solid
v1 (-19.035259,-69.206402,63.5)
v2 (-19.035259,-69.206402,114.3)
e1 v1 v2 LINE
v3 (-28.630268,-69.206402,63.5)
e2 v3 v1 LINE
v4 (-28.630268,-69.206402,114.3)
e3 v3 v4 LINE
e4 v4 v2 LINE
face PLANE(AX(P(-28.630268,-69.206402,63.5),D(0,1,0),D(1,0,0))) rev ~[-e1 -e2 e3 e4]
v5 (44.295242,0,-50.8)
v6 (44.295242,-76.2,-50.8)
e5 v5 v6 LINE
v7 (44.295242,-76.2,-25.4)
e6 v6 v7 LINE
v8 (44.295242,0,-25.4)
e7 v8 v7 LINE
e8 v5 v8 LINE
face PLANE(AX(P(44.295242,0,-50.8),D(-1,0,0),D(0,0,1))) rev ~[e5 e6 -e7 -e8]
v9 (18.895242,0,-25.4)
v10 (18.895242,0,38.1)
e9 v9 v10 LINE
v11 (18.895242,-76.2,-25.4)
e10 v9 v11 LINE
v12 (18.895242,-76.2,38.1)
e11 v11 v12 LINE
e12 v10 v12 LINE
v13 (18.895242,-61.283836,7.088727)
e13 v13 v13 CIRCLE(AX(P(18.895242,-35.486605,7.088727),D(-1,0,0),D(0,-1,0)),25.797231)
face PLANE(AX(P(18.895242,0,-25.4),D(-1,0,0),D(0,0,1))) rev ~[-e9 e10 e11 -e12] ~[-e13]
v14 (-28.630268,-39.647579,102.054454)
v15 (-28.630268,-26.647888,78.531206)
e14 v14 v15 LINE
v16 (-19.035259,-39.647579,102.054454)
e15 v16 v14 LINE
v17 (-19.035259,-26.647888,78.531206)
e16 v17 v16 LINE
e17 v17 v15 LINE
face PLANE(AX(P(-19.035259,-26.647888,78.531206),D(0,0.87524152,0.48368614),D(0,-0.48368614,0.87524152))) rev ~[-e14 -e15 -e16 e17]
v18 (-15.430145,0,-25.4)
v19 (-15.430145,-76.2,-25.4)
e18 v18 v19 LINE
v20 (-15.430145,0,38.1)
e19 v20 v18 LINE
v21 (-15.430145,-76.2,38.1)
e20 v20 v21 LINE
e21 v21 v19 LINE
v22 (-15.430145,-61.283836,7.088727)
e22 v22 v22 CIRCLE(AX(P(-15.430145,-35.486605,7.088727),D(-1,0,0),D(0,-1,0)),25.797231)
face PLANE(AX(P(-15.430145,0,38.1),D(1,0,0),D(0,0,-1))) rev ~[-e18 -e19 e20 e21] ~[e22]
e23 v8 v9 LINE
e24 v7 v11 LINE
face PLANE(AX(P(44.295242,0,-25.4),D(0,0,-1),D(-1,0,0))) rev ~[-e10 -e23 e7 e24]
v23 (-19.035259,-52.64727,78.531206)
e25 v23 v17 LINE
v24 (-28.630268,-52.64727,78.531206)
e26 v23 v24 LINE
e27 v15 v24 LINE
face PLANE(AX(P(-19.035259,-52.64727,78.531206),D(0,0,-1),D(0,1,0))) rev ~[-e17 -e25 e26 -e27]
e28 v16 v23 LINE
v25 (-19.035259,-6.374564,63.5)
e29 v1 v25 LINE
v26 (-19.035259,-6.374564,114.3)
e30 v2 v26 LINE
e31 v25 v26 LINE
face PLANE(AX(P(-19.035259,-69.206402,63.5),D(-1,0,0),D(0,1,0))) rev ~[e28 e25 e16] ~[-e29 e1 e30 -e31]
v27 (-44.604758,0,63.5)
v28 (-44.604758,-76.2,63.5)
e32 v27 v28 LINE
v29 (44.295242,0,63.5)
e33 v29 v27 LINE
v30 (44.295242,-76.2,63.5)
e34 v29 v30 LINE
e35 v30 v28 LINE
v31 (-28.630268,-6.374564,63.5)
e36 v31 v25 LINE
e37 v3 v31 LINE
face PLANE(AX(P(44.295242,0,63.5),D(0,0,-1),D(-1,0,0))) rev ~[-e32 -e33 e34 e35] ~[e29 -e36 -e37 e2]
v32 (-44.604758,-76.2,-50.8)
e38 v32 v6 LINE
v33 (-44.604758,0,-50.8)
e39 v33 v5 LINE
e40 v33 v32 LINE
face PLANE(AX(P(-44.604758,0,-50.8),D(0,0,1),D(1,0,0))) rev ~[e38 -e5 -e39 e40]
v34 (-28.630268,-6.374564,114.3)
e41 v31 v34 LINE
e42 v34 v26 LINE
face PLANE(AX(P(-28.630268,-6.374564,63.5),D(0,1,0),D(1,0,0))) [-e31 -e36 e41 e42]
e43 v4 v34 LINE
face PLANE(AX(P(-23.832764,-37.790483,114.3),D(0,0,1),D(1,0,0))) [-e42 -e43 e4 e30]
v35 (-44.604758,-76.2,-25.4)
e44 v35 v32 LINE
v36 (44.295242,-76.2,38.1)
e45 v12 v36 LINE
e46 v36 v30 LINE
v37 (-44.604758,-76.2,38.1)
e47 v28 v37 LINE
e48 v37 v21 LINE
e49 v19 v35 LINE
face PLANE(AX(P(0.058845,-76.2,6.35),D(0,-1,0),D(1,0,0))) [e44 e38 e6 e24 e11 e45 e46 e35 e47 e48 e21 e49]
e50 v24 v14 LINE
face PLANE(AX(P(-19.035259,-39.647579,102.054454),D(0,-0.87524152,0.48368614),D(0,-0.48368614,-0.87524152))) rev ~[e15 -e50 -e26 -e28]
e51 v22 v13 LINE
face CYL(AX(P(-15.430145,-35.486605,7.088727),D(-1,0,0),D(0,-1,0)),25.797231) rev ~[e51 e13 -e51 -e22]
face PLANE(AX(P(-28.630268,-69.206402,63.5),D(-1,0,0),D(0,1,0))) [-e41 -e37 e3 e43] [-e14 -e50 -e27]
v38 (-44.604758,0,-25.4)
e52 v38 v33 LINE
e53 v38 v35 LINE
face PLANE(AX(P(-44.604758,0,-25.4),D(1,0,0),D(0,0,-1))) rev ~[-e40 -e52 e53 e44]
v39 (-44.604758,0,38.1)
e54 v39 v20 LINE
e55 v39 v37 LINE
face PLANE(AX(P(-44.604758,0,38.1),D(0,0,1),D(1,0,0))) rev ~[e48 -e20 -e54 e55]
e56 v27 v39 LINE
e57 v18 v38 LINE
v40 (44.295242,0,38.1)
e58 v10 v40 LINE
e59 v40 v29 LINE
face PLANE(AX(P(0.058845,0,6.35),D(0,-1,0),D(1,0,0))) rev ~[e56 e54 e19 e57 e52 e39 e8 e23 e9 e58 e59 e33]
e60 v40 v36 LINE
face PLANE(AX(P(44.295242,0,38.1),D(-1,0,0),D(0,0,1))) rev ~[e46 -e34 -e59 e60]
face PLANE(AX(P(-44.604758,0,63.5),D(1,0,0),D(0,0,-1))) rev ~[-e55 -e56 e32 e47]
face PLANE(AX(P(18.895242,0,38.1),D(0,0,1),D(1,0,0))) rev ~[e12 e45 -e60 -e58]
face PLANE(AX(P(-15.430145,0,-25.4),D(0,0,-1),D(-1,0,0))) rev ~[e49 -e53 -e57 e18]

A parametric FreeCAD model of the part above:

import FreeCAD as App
import Part
import Sketcher

V = App.Vector
Q = App.Units.Quantity

doc = App.newDocument("Part")
params = doc.addObject("Spreadsheet::Sheet", "Params")
for row, (alias, value) in enumerate([
    ("sketch1_width", "1 in"),
    ("sketch1_width2", "3.5 in"),
    ("sketch1_height", "2.5 in"),
    ("pad1_length", "3 in"),
    ("pad2_length", "2 in"),
], start=1):
    params.set(f"A{row}", alias)
    params.set(f"B{row}", "=" + value)
    params.setAlias(f"B{row}", alias)

body = doc.addObject("PartDesign::Body", "Body")

# Sketch on XZ plane
sketch1 = body.newObject("Sketcher::SketchObject", "Sketch")
sketch1.AttachmentSupport = (doc.getObject("XZ_Plane"), [""])
sketch1.MapMode = "FlatFace"
sketch1.addGeometry([
    Part.LineSegment(V(-44.604758, -25.4, 0), V(-44.604758, -50.8, 0)),  # 0
    Part.LineSegment(V(-44.604758, -50.8, 0), V(44.295242, -50.8, 0)),  # 1
    Part.LineSegment(V(44.295242, -50.8, 0), V(44.295242, -25.4, 0)),  # 2
    Part.LineSegment(V(44.295242, -25.4, 0), V(18.895242, -25.4, 0)),  # 3
    Part.LineSegment(V(18.895242, -25.4, 0), V(18.895242, 38.1, 0)),  # 4
    Part.LineSegment(V(18.895242, 38.1, 0), V(44.295242, 38.1, 0)),  # 5
    Part.LineSegment(V(44.295242, 38.1, 0), V(44.295242, 63.5, 0)),  # 6
    Part.LineSegment(V(44.295242, 63.5, 0), V(-44.604758, 63.5, 0)),  # 7
    Part.LineSegment(V(-44.604758, 63.5, 0), V(-44.604758, 38.1, 0)),  # 8
    Part.LineSegment(V(-44.604758, 38.1, 0), V(-15.430146, 38.1, 0)),  # 9
    Part.LineSegment(V(-15.430146, 38.1, 0), V(-15.430146, -25.4, 0)),  # 10
    Part.LineSegment(V(-15.430146, -25.4, 0), V(-44.604758, -25.4, 0)),  # 11
], False)
sketch1.addConstraint([
    Sketcher.Constraint("Coincident", 0, 2, 1, 1),
    Sketcher.Constraint("Coincident", 1, 2, 2, 1),
    Sketcher.Constraint("Coincident", 2, 2, 3, 1),
    Sketcher.Constraint("Coincident", 3, 2, 4, 1),
    Sketcher.Constraint("Coincident", 4, 2, 5, 1),
    Sketcher.Constraint("Coincident", 5, 2, 6, 1),
    Sketcher.Constraint("Coincident", 6, 2, 7, 1),
    Sketcher.Constraint("Coincident", 7, 2, 8, 1),
    Sketcher.Constraint("Coincident", 8, 2, 9, 1),
    Sketcher.Constraint("Coincident", 9, 2, 10, 1),
    Sketcher.Constraint("Coincident", 10, 2, 11, 1),
    Sketcher.Constraint("Coincident", 11, 2, 0, 1),
    Sketcher.Constraint("Vertical", 0),
    Sketcher.Constraint("Horizontal", 1),
    Sketcher.Constraint("Vertical", 2),
    Sketcher.Constraint("Horizontal", 3),
    Sketcher.Constraint("Vertical", 4),
    Sketcher.Constraint("Horizontal", 5),
    Sketcher.Constraint("Vertical", 6),
    Sketcher.Constraint("Horizontal", 7),
    Sketcher.Constraint("Vertical", 8),
    Sketcher.Constraint("Horizontal", 9),
    Sketcher.Constraint("Vertical", 10),
    Sketcher.Constraint("Horizontal", 11),
    Sketcher.Constraint("Horizontal", 5, 2, 8, 2),
    Sketcher.Constraint("Horizontal", 3, 2, 10, 2),
    Sketcher.Constraint("Vertical", 2, 2, 5, 2),
    Sketcher.Constraint("Vertical", 0, 2, 7, 2),
    Sketcher.Constraint("Equal", 5, 0),
    Sketcher.Constraint("Equal", 2, 6),
    Sketcher.Constraint("DistanceX", 3, 2, 3, 1, Q("1 in")),
    Sketcher.Constraint("DistanceX", 1, 1, 1, 2, Q("3.5 in")),
    Sketcher.Constraint("DistanceY", 4, 1, 4, 2, Q("2.5 in")),
    Sketcher.Constraint("DistanceY", 0, 2, -1, 1, Q("2 in")),
    Sketcher.Constraint("DistanceX", 9, 1, 9, 2, Q("29.174612 mm")),
    Sketcher.Constraint("DistanceX", 0, 2, -1, 1, Q("44.604758 mm")),
])
sketch1.setExpression("Constraints[30]", "Params.sketch1_width")
sketch1.setExpression("Constraints[31]", "Params.sketch1_width2")
sketch1.setExpression("Constraints[32]", "Params.sketch1_height")
pad1 = body.newObject("PartDesign::Pad", "Pad")
pad1.Profile = sketch1
pad1.setExpression("Length", "Params.pad1_length")

# Sketch on XY plane
sketch2 = body.newObject("Sketcher::SketchObject", "Sketch001")
sketch2.AttachmentSupport = (doc.getObject("XY_Plane"), [""])
sketch2.MapMode = "FlatFace"
sketch2.AttachmentOffset = App.Placement(V(0, 0, 2.5 * 25.4), App.Rotation())
sketch2.addGeometry([
    Part.LineSegment(V(-28.630268, -6.374564, 0), V(-28.630268, -69.206402, 0)),
    Part.LineSegment(V(-28.630268, -69.206402, 0), V(-19.035259, -69.206402, 0)),
    Part.LineSegment(V(-19.035259, -69.206402, 0), V(-19.035259, -6.374564, 0)),
    Part.LineSegment(V(-19.035259, -6.374564, 0), V(-28.630268, -6.374564, 0)),
], False)
sketch2.addConstraint([
    Sketcher.Constraint("Coincident", 0, 2, 1, 1),
    Sketcher.Constraint("Coincident", 1, 2, 2, 1),
    Sketcher.Constraint("Coincident", 2, 2, 3, 1),
    Sketcher.Constraint("Coincident", 3, 2, 0, 1),
    Sketcher.Constraint("Vertical", 0),
    Sketcher.Constraint("Horizontal", 1),
    Sketcher.Constraint("Vertical", 2),
    Sketcher.Constraint("Horizontal", 3),
    Sketcher.Constraint("DistanceX", 1, 1, 1, 2, Q("9.595009 mm")),
    Sketcher.Constraint("DistanceY", 0, 2, -1, 1, Q("69.206402 mm")),
    Sketcher.Constraint("DistanceY", 0, 2, 0, 1, Q("62.831837 mm")),
    Sketcher.Constraint("DistanceX", 1, 2, -1, 1, Q("19.035259 mm")),
])
pad2 = body.newObject("PartDesign::Pad", "Pad001")
pad2.Profile = sketch2
pad2.setExpression("Length", "Params.pad2_length")

# Sketch on YZ plane
sketch3 = body.newObject("Sketcher::SketchObject", "Sketch002")
sketch3.AttachmentSupport = (doc.getObject("YZ_Plane"), [""])
sketch3.MapMode = "FlatFace"
sketch3.AttachmentOffset = App.Placement(V(0, 0, -19.035259), App.Rotation())
sketch3.addGeometry([
    Part.LineSegment(V(-52.64727, 78.531206, 0), V(-26.647888, 78.531206, 0)),
    Part.LineSegment(V(-26.647888, 78.531206, 0), V(-39.647579, 102.054454, 0)),
    Part.LineSegment(V(-39.647579, 102.054454, 0), V(-52.64727, 78.531206, 0)),
], False)
sketch3.addConstraint([
    Sketcher.Constraint("Coincident", 0, 2, 1, 1),
    Sketcher.Constraint("Coincident", 1, 2, 2, 1),
    Sketcher.Constraint("Coincident", 2, 2, 0, 1),
    Sketcher.Constraint("Horizontal", 0),
    Sketcher.Constraint("Equal", 1, 2),
    Sketcher.Constraint("DistanceX", 0, 1, 0, 2, Q("25.999382 mm")),
    Sketcher.Constraint("DistanceX", 0, 2, -1, 1, Q("26.647888 mm")),
    Sketcher.Constraint("DistanceY", 0, 2, 1, 2, Q("23.523249 mm")),
    Sketcher.Constraint("DistanceY", -1, 1, 0, 2, Q("78.531206 mm")),
])
pocket1 = body.newObject("PartDesign::Pocket", "Pocket")
pocket1.Profile = sketch3
pocket1.Type = "ThroughAll"

# Sketch on YZ plane
sketch4 = body.newObject("Sketcher::SketchObject", "Sketch003")
sketch4.AttachmentSupport = (doc.getObject("YZ_Plane"), [""])
sketch4.MapMode = "FlatFace"
sketch4.AttachmentOffset = App.Placement(V(0, 0, -15.430146), App.Rotation())
sketch4.addGeometry(Part.Circle(V(-35.486605, 7.088727, 0), V(0, 0, 1), 25.797231), False)
sketch4.addConstraint([
    Sketcher.Constraint("Diameter", 0, Q("51.594462 mm")),
    Sketcher.Constraint("DistanceX", 0, 3, -1, 1, Q("35.486605 mm")),
    Sketcher.Constraint("DistanceY", -1, 1, 0, 3, Q("7.088727 mm")),
])
pocket2 = body.newObject("PartDesign::Pocket", "Pocket001")
pocket2.Profile = sketch4
pocket2.Type = "ThroughAll"
pocket2.Reversed = True

doc.recompute()
